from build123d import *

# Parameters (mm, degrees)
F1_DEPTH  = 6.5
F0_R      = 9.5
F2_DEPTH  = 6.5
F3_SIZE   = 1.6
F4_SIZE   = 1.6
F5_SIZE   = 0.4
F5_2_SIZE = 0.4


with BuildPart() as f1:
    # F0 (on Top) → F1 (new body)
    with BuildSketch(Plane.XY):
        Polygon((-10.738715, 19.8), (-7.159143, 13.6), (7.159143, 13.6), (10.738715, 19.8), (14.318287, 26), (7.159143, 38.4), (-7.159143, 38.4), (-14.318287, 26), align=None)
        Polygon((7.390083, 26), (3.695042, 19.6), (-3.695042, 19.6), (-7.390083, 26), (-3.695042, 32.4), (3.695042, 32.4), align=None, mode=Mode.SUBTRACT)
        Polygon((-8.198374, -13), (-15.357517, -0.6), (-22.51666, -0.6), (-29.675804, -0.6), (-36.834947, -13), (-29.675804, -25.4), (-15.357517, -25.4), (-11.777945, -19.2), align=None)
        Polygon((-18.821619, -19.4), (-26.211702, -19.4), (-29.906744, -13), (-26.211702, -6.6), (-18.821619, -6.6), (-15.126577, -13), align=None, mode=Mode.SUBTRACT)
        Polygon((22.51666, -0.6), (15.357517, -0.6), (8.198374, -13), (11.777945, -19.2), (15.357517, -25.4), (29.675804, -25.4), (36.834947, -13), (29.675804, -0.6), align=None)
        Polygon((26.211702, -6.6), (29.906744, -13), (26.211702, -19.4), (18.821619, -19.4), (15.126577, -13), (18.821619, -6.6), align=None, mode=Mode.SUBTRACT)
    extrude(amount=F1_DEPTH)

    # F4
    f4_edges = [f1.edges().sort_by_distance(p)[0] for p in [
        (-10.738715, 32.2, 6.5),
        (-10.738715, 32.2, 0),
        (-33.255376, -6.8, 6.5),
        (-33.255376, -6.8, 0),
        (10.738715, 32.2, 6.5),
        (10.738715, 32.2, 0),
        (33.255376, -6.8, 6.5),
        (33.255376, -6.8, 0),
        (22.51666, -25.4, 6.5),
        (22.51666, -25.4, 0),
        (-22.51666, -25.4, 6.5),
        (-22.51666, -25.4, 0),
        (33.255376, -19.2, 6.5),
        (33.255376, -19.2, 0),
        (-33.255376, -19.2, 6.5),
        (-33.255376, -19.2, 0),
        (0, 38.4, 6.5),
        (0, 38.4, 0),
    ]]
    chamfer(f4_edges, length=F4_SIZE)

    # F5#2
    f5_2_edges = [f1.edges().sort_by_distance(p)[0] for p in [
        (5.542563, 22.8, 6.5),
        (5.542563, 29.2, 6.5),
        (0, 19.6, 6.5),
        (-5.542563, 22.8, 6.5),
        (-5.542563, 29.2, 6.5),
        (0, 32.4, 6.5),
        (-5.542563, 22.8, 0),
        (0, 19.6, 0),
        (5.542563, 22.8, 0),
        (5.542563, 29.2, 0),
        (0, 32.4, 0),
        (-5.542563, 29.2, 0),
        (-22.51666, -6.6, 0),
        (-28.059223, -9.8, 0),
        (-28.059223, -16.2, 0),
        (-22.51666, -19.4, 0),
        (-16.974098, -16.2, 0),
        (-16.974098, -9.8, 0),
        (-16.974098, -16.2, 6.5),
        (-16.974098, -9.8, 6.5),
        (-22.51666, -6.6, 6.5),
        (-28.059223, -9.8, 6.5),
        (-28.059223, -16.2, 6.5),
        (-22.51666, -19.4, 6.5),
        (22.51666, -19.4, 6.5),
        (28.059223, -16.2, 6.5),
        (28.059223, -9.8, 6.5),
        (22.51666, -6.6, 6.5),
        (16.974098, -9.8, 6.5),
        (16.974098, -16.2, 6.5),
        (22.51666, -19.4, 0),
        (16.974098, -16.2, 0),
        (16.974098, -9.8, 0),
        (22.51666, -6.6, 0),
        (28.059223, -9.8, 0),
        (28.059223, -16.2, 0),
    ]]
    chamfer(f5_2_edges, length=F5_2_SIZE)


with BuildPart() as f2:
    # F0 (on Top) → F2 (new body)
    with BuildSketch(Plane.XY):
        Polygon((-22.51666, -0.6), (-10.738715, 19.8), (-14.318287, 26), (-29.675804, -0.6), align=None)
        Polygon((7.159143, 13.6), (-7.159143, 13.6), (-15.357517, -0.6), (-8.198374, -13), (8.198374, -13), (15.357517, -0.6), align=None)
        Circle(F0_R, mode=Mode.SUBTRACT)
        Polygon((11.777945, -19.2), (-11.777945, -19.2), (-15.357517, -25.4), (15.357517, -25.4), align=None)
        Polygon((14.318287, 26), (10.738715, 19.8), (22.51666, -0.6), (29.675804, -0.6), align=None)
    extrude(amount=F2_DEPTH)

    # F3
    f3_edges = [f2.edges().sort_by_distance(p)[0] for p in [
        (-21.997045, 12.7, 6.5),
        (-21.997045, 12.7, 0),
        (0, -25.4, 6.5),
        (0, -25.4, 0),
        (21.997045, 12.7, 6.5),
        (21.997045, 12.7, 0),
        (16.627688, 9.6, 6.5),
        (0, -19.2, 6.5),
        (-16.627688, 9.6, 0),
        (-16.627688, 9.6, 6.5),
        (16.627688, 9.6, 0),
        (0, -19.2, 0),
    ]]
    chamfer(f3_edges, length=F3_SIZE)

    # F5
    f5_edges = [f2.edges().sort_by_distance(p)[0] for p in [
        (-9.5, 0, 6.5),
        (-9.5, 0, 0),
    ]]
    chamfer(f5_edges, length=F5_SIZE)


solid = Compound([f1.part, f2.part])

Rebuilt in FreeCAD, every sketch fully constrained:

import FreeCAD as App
import Part
import Sketcher

V = App.Vector
Q = App.Units.Quantity


def edges_at(feature, points):
    """Names of the edges that pass closest to the given points."""
    edges = feature.Shape.Edges
    near = lambda p: min(range(len(edges)), key=lambda i: edges[i].distToShape(Part.Vertex(*p))[0])
    return sorted({f"Edge{near(p) + 1}" for p in points})

doc = App.newDocument("Part")
body = doc.addObject("PartDesign::Body", "Body")
body.AllowCompound = True

# Sketch on XY plane
sketch1 = body.newObject("Sketcher::SketchObject", "Sketch")
sketch1.AttachmentSupport = (doc.getObject("XY_Plane"), [""])
sketch1.MapMode = "FlatFace"
sketch1.addGeometry([
    Part.LineSegment(V(-7, 14, 0), V(7, 14, 0)),  # 0
    Part.LineSegment(V(7, 14, 0), V(14, 26, 0)),  # 1
    Part.LineSegment(V(14, 26, 0), V(7, 38, 0)),  # 2
    Part.LineSegment(V(7, 38, 0), V(-7, 38, 0)),  # 3
    Part.LineSegment(V(-7, 38, 0), V(-14, 26, 0)),  # 4
    Part.LineSegment(V(-14, 26, 0), V(-7, 14, 0)),  # 5
    Part.LineSegment(V(4, 32, 0), V(7, 26, 0)),  # 6
    Part.LineSegment(V(7, 26, 0), V(4, 20, 0)),  # 7
    Part.LineSegment(V(4, 20, 0), V(-4, 20, 0)),  # 8
    Part.LineSegment(V(-4, 20, 0), V(-7, 26, 0)),  # 9
    Part.LineSegment(V(-7, 26, 0), V(-4, 32, 0)),  # 10
    Part.LineSegment(V(-4, 32, 0), V(4, 32, 0)),  # 11
    Part.LineSegment(V(-8, -13, 0), V(-15, -1, 0)),  # 12
    Part.LineSegment(V(-15, -1, 0), V(-30, -1, 0)),  # 13
    Part.LineSegment(V(-30, -1, 0), V(-37, -13, 0)),  # 14
    Part.LineSegment(V(-37, -13, 0), V(-30, -25, 0)),  # 15
    Part.LineSegment(V(-30, -25, 0), V(-15, -25, 0)),  # 16
    Part.LineSegment(V(-15, -25, 0), V(-12, -19, 0)),  # 17
    Part.LineSegment(V(-12, -19, 0), V(-8, -13, 0)),  # 18
    Part.LineSegment(V(-15, -13, 0), V(-19, -19, 0)),  # 19
    Part.LineSegment(V(-19, -19, 0), V(-26, -19, 0)),  # 20
    Part.LineSegment(V(-26, -19, 0), V(-30, -13, 0)),  # 21
    Part.LineSegment(V(-30, -13, 0), V(-26, -7, 0)),  # 22
    Part.LineSegment(V(-26, -7, 0), V(-19, -7, 0)),  # 23
    Part.LineSegment(V(-19, -7, 0), V(-15, -13, 0)),  # 24
    Part.LineSegment(V(15, -1, 0), V(8, -13, 0)),  # 25
    Part.LineSegment(V(8, -13, 0), V(12, -19, 0)),  # 26
    Part.LineSegment(V(12, -19, 0), V(15, -25, 0)),  # 27
    Part.LineSegment(V(15, -25, 0), V(30, -25, 0)),  # 28
    Part.LineSegment(V(30, -25, 0), V(37, -13, 0)),  # 29
    Part.LineSegment(V(37, -13, 0), V(30, -1, 0)),  # 30
    Part.LineSegment(V(30, -1, 0), V(15, -1, 0)),  # 31
    Part.LineSegment(V(19, -7, 0), V(26, -7, 0)),  # 32
    Part.LineSegment(V(26, -7, 0), V(30, -13, 0)),  # 33
    Part.LineSegment(V(30, -13, 0), V(26, -19, 0)),  # 34
    Part.LineSegment(V(26, -19, 0), V(19, -19, 0)),  # 35
    Part.LineSegment(V(19, -19, 0), V(15, -13, 0)),  # 36
    Part.LineSegment(V(15, -13, 0), V(19, -7, 0)),  # 37
], False)
sketch1.addConstraint([
    Sketcher.Constraint("Coincident", 0, 2, 1, 1),
    Sketcher.Constraint("Coincident", 1, 2, 2, 1),
    Sketcher.Constraint("Coincident", 2, 2, 3, 1),
    Sketcher.Constraint("Coincident", 3, 2, 4, 1),
    Sketcher.Constraint("Coincident", 4, 2, 5, 1),
    Sketcher.Constraint("Coincident", 5, 2, 0, 1),
    Sketcher.Constraint("Coincident", 6, 2, 7, 1),
    Sketcher.Constraint("Coincident", 7, 2, 8, 1),
    Sketcher.Constraint("Coincident", 8, 2, 9, 1),
    Sketcher.Constraint("Coincident", 9, 2, 10, 1),
    Sketcher.Constraint("Coincident", 10, 2, 11, 1),
    Sketcher.Constraint("Coincident", 11, 2, 6, 1),
    Sketcher.Constraint("Coincident", 12, 2, 13, 1),
    Sketcher.Constraint("Coincident", 13, 2, 14, 1),
    Sketcher.Constraint("Coincident", 14, 2, 15, 1),
    Sketcher.Constraint("Coincident", 15, 2, 16, 1),
    Sketcher.Constraint("Coincident", 16, 2, 17, 1),
    Sketcher.Constraint("Coincident", 17, 2, 18, 1),
    Sketcher.Constraint("Coincident", 18, 2, 12, 1),
    Sketcher.Constraint("Coincident", 19, 2, 20, 1),
    Sketcher.Constraint("Coincident", 20, 2, 21, 1),
    Sketcher.Constraint("Coincident", 21, 2, 22, 1),
    Sketcher.Constraint("Coincident", 22, 2, 23, 1),
    Sketcher.Constraint("Coincident", 23, 2, 24, 1),
    Sketcher.Constraint("Coincident", 24, 2, 19, 1),
    Sketcher.Constraint("Coincident", 25, 2, 26, 1),
    Sketcher.Constraint("Coincident", 26, 2, 27, 1),
    Sketcher.Constraint("Coincident", 27, 2, 28, 1),
    Sketcher.Constraint("Coincident", 28, 2, 29, 1),
    Sketcher.Constraint("Coincident", 29, 2, 30, 1),
    Sketcher.Constraint("Coincident", 30, 2, 31, 1),
    Sketcher.Constraint("Coincident", 31, 2, 25, 1),
    Sketcher.Constraint("Coincident", 32, 2, 33, 1),
    Sketcher.Constraint("Coincident", 33, 2, 34, 1),
    Sketcher.Constraint("Coincident", 34, 2, 35, 1),
    Sketcher.Constraint("Coincident", 35, 2, 36, 1),
    Sketcher.Constraint("Coincident", 36, 2, 37, 1),
    Sketcher.Constraint("Coincident", 37, 2, 32, 1),
    Sketcher.Constraint("Horizontal", 0),
    Sketcher.Constraint("Horizontal", 3),
    Sketcher.Constraint("Horizontal", 8),
    Sketcher.Constraint("Horizontal", 11),
    Sketcher.Constraint("Horizontal", 13),
    Sketcher.Constraint("Horizontal", 16),
    Sketcher.Constraint("Horizontal", 20),
    Sketcher.Constraint("Horizontal", 23),
    Sketcher.Constraint("Horizontal", 28),
    Sketcher.Constraint("Horizontal", 31),
    Sketcher.Constraint("Horizontal", 32),
    Sketcher.Constraint("Horizontal", 35),
    Sketcher.Constraint("Symmetric", 1, 2, 4, 2, -2),
    Sketcher.Constraint("Symmetric", 6, 2, 9, 2, -2),
    Sketcher.Constraint("Symmetric", 18, 2, 25, 2, -2),
    Sketcher.Constraint("Symmetric", 17, 2, 26, 2, -2),
    Sketcher.Constraint("Symmetric", 16, 2, 27, 2, -2),
    Sketcher.Constraint("Symmetric", 14, 2, 29, 2, -2),
    Sketcher.Constraint("Symmetric", 13, 2, 30, 2, -2),
    Sketcher.Constraint("Symmetric", 22, 2, 32, 2, -2),
    Sketcher.Constraint("Symmetric", 21, 2, 33, 2, -2),
    Sketcher.Constraint("Symmetric", 20, 2, 34, 2, -2),
    Sketcher.Constraint("Symmetric", 24, 2, 36, 2, -2),
    Sketcher.Constraint("Parallel", 1, 4),
    Sketcher.Constraint("Parallel", 2, 5),
    Sketcher.Constraint("Parallel", 5, 6),
    Sketcher.Constraint("Parallel", 4, 7),
    Sketcher.Constraint("Parallel", 6, 9),
    Sketcher.Constraint("Parallel", 7, 10),
    Sketcher.Constraint("Parallel", 9, 12),
    Sketcher.Constraint("Parallel", 10, 14),
    Sketcher.Constraint("Parallel", 12, 15),
    Sketcher.Constraint("Parallel", 14, 17),
    Sketcher.Constraint("Parallel", 17, 18),
    Sketcher.Constraint("Parallel", 18, 19),
    Sketcher.Constraint("Parallel", 15, 21),
    Sketcher.Constraint("Parallel", 19, 22),
    Sketcher.Constraint("Parallel", 21, 24),
    Sketcher.Constraint("Parallel", 22, 25),
    Sketcher.Constraint("Parallel", 24, 26),
    Sketcher.Constraint("Parallel", 25, 29),
    Sketcher.Constraint("Parallel", 33, 36),
    Sketcher.Constraint("Parallel", 34, 37),
    Sketcher.Constraint("Horizontal", 4, 2, 6, 2),
    Sketcher.Constraint("Horizontal", 14, 2, 18, 2),
    Sketcher.Constraint("Horizontal", 18, 2, 21, 2),
    Sketcher.Constraint("Horizontal", 21, 2, 24, 2),
    Sketcher.Constraint("Vertical", 0, 2, 2, 2),
    Sketcher.Constraint("Vertical", 8, 2, 10, 2),
    Sketcher.Constraint("Vertical", 13, 2, 15, 2),
    Sketcher.Constraint("Vertical", 20, 2, 22, 2),
    Sketcher.Constraint("Equal", 3, 13),
    Sketcher.Constraint("Equal", 11, 20),
    Sketcher.Constraint("Equal", 5, 12),
    Sketcher.Constraint("Equal", 17, 18),
    Sketcher.Constraint("Equal", 10, 19),
    Sketcher.Constraint("Angle", 1, Q("59.999998 deg")),
    Sketcher.Constraint("DistanceY", -1, 1, 1, 2, 26.0),
    Sketcher.Constraint("DistanceY", 14, 2, -1, 1, 13.0),
    Sketcher.Constraint("DistanceY", 0, 2, 7, 2, 6.0),
    Sketcher.Constraint("DistanceY", -1, 1, 0, 2, 13.6),
    Sketcher.Constraint("DistanceX", 14, 2, 17, 2, 25.057002),
    Sketcher.Constraint("DistanceX", 20, 2, -1, 1, 26.211702),
    Sketcher.Constraint("DistanceX", 7, 2, 0, 2, 3.464101),
    Sketcher.Constraint("DistanceX", 19, 2, 16, 2, 3.464102),
])
pad1 = body.newObject("PartDesign::Pad", "Pad")
pad1.Profile = sketch1
pad1.Length = 6.5
doc.recompute()

chamfer = body.newObject("PartDesign::Chamfer", "Chamfer")
chamfer.Base = (pad1, edges_at(pad1, [
    (-10.739, 32.2, 6.5),
    (-10.739, 32.2, 0),
    (-33.255, -6.8, 6.5),
    (-33.255, -6.8, 0),
    (10.739, 32.2, 6.5),
    (10.739, 32.2, 0),
    (33.255, -6.8, 6.5),
    (33.255, -6.8, 0),
    (22.517, -25.4, 6.5),
    (22.517, -25.4, 0),
    (-22.517, -25.4, 6.5),
    (-22.517, -25.4, 0),
    (33.255, -19.2, 6.5),
    (33.255, -19.2, 0),
    (-33.255, -19.2, 6.5),
    (-33.255, -19.2, 0),
    (0, 38.4, 6.5),
    (0, 38.4, 0),
]))
chamfer.Size = 1.6
doc.recompute()

chamfer2 = body.newObject("PartDesign::Chamfer", "Chamfer001")
chamfer2.Base = (chamfer, edges_at(chamfer, [
    (5.543, 22.8, 6.5),
    (5.543, 29.2, 6.5),
    (0, 19.6, 6.5),
    (-5.543, 22.8, 6.5),
    (-5.543, 29.2, 6.5),
    (0, 32.4, 6.5),
    (-5.543, 22.8, 0),
    (0, 19.6, 0),
    (5.543, 22.8, 0),
    (5.543, 29.2, 0),
    (0, 32.4, 0),
    (-5.543, 29.2, 0),
    (-22.517, -6.6, 0),
    (-28.059, -9.8, 0),
    (-28.059, -16.2, 0),
    (-22.517, -19.4, 0),
    (-16.974, -16.2, 0),
    (-16.974, -9.8, 0),
    (-16.974, -16.2, 6.5),
    (-16.974, -9.8, 6.5),
    (-22.517, -6.6, 6.5),
    (-28.059, -9.8, 6.5),
    (-28.059, -16.2, 6.5),
    (-22.517, -19.4, 6.5),
    (22.517, -19.4, 6.5),
    (28.059, -16.2, 6.5),
    (28.059, -9.8, 6.5),
    (22.517, -6.6, 6.5),
    (16.974, -9.8, 6.5),
    (16.974, -16.2, 6.5),
    (22.517, -19.4, 0),
    (16.974, -16.2, 0),
    (16.974, -9.8, 0),
    (22.517, -6.6, 0),
    (28.059, -9.8, 0),
    (28.059, -16.2, 0),
]))
chamfer2.Size = 0.4
body2 = doc.addObject("PartDesign::Body", "Body001")
body2.AllowCompound = True

# Sketch on XY plane
sketch2 = body2.newObject("Sketcher::SketchObject", "Sketch001")
sketch2.AttachmentSupport = (doc.getObject("XY_Plane001"), [""])
sketch2.MapMode = "FlatFace"
sketch2.addGeometry([
    Part.LineSegment(V(-23, -1, 0), V(-11, 20, 0)),  # 0
    Part.LineSegment(V(-11, 20, 0), V(-14, 26, 0)),  # 1
    Part.LineSegment(V(-14, 26, 0), V(-30, -1, 0)),  # 2
    Part.LineSegment(V(-30, -1, 0), V(-23, -1, 0)),  # 3
    Part.LineSegment(V(7, 14, 0), V(-7, 14, 0)),  # 4
    Part.LineSegment(V(-7, 14, 0), V(-15, -1, 0)),  # 5
    Part.LineSegment(V(-15, -1, 0), V(-8, -13, 0)),  # 6
    Part.LineSegment(V(-8, -13, 0), V(8, -13, 0)),  # 7
    Part.LineSegment(V(8, -13, 0), V(15, -1, 0)),  # 8
    Part.LineSegment(V(15, -1, 0), V(7, 14, 0)),  # 9
    Part.Circle(V(0, 0, 0), V(0, 0, 1), 10),  # 10
    Part.LineSegment(V(12, -19, 0), V(-12, -19, 0)),  # 11
    Part.LineSegment(V(-12, -19, 0), V(-15, -25, 0)),  # 12
    Part.LineSegment(V(-15, -25, 0), V(15, -25, 0)),  # 13
    Part.LineSegment(V(15, -25, 0), V(12, -19, 0)),  # 14
    Part.LineSegment(V(14, 26, 0), V(11, 20, 0)),  # 15
    Part.LineSegment(V(11, 20, 0), V(23, -1, 0)),  # 16
    Part.LineSegment(V(23, -1, 0), V(30, -1, 0)),  # 17
    Part.LineSegment(V(30, -1, 0), V(14, 26, 0)),  # 18
], False)
sketch2.addConstraint([
    Sketcher.Constraint("Coincident", 0, 2, 1, 1),
    Sketcher.Constraint("Coincident", 1, 2, 2, 1),
    Sketcher.Constraint("Coincident", 2, 2, 3, 1),
    Sketcher.Constraint("Coincident", 3, 2, 0, 1),
    Sketcher.Constraint("Coincident", 4, 2, 5, 1),
    Sketcher.Constraint("Coincident", 5, 2, 6, 1),
    Sketcher.Constraint("Coincident", 6, 2, 7, 1),
    Sketcher.Constraint("Coincident", 7, 2, 8, 1),
    Sketcher.Constraint("Coincident", 8, 2, 9, 1),
    Sketcher.Constraint("Coincident", 9, 2, 4, 1),
    Sketcher.Constraint("Coincident", 11, 2, 12, 1),
    Sketcher.Constraint("Coincident", 12, 2, 13, 1),
    Sketcher.Constraint("Coincident", 13, 2, 14, 1),
    Sketcher.Constraint("Coincident", 14, 2, 11, 1),
    Sketcher.Constraint("Coincident", 15, 2, 16, 1),
    Sketcher.Constraint("Coincident", 16, 2, 17, 1),
    Sketcher.Constraint("Coincident", 17, 2, 18, 1),
    Sketcher.Constraint("Coincident", 18, 2, 15, 1),
    Sketcher.Constraint("Horizontal", 3),
    Sketcher.Constraint("Horizontal", 4),
    Sketcher.Constraint("Horizontal", 7),
    Sketcher.Constraint("Horizontal", 11),
    Sketcher.Constraint("Horizontal", 13),
    Sketcher.Constraint("Horizontal", 17),
    Sketcher.Constraint("Coincident", 10, 3, -1, 1),
    Sketcher.Constraint("Symmetric", 5, 2, 8, 2, -2),
    Sketcher.Constraint("Symmetric", 0, 2, 15, 2, -2),
    Sketcher.Constraint("Symmetric", 3, 2, 16, 2, -2),
    Sketcher.Constraint("Symmetric", 1, 2, 18, 2, -2),
    Sketcher.Constraint("Parallel", 0, 2),
    Sketcher.Constraint("Parallel", 2, 5),
    Sketcher.Constraint("Parallel", 1, 6),
    Sketcher.Constraint("Parallel", 5, 8),
    Sketcher.Constraint("Parallel", 6, 9),
    Sketcher.Constraint("Parallel", 8, 12),
    Sketcher.Constraint("Parallel", 9, 14),
    Sketcher.Constraint("Parallel", 12, 15),
    Sketcher.Constraint("Parallel", 16, 18),
    Sketcher.Constraint("Horizontal", 3, 2, 5, 2),
    Sketcher.Constraint("Vertical", 5, 2, 12, 2),
    Sketcher.Constraint("Vertical", 8, 2, 13, 2),
    Sketcher.Constraint("Equal", 1, 12),
    Sketcher.Constraint("Diameter", 10, 19.0),
    Sketcher.Constraint("Angle", 0, Q("60.000001 deg")),
    Sketcher.Constraint("DistanceY", -1, 1, 1, 2, 26.0),
    Sketcher.Constraint("DistanceY", 6, 2, -1, 1, 13.0),
    Sketcher.Constraint("DistanceY", -1, 1, 0, 2, 19.8),
    Sketcher.Constraint("DistanceY", 2, 2, -1, 1, 0.6),
    Sketcher.Constraint("DistanceY", -1, 1, 4, 2, 13.6),
    Sketcher.Constraint("DistanceY", 11, 2, -1, 1, 19.2),
    Sketcher.Constraint("DistanceX", 0, 2, 18, 2, 25.057002),
    Sketcher.Constraint("DistanceX", 11, 2, 11, 1, 23.55589),
])
pad2 = body2.newObject("PartDesign::Pad", "Pad001")
pad2.Profile = sketch2
pad2.Length = 6.5
doc.recompute()

chamfer3 = body2.newObject("PartDesign::Chamfer", "Chamfer002")
chamfer3.Base = (pad2, edges_at(pad2, [
    (-21.997, 12.7, 6.5),
    (-21.997, 12.7, 0),
    (0, -25.4, 6.5),
    (0, -25.4, 0),
    (21.997, 12.7, 6.5),
    (21.997, 12.7, 0),
    (16.628, 9.6, 6.5),
    (0, -19.2, 6.5),
    (-16.628, 9.6, 0),
    (-16.628, 9.6, 6.5),
    (16.628, 9.6, 0),
    (0, -19.2, 0),
]))
chamfer3.Size = 1.6
doc.recompute()

chamfer4 = body2.newObject("PartDesign::Chamfer", "Chamfer003")
chamfer4.Base = (chamfer3, edges_at(chamfer3, [(-9.5, 0, 6.5), (-9.5, 0, 0)]))
chamfer4.Size = 0.4

doc.recompute()
